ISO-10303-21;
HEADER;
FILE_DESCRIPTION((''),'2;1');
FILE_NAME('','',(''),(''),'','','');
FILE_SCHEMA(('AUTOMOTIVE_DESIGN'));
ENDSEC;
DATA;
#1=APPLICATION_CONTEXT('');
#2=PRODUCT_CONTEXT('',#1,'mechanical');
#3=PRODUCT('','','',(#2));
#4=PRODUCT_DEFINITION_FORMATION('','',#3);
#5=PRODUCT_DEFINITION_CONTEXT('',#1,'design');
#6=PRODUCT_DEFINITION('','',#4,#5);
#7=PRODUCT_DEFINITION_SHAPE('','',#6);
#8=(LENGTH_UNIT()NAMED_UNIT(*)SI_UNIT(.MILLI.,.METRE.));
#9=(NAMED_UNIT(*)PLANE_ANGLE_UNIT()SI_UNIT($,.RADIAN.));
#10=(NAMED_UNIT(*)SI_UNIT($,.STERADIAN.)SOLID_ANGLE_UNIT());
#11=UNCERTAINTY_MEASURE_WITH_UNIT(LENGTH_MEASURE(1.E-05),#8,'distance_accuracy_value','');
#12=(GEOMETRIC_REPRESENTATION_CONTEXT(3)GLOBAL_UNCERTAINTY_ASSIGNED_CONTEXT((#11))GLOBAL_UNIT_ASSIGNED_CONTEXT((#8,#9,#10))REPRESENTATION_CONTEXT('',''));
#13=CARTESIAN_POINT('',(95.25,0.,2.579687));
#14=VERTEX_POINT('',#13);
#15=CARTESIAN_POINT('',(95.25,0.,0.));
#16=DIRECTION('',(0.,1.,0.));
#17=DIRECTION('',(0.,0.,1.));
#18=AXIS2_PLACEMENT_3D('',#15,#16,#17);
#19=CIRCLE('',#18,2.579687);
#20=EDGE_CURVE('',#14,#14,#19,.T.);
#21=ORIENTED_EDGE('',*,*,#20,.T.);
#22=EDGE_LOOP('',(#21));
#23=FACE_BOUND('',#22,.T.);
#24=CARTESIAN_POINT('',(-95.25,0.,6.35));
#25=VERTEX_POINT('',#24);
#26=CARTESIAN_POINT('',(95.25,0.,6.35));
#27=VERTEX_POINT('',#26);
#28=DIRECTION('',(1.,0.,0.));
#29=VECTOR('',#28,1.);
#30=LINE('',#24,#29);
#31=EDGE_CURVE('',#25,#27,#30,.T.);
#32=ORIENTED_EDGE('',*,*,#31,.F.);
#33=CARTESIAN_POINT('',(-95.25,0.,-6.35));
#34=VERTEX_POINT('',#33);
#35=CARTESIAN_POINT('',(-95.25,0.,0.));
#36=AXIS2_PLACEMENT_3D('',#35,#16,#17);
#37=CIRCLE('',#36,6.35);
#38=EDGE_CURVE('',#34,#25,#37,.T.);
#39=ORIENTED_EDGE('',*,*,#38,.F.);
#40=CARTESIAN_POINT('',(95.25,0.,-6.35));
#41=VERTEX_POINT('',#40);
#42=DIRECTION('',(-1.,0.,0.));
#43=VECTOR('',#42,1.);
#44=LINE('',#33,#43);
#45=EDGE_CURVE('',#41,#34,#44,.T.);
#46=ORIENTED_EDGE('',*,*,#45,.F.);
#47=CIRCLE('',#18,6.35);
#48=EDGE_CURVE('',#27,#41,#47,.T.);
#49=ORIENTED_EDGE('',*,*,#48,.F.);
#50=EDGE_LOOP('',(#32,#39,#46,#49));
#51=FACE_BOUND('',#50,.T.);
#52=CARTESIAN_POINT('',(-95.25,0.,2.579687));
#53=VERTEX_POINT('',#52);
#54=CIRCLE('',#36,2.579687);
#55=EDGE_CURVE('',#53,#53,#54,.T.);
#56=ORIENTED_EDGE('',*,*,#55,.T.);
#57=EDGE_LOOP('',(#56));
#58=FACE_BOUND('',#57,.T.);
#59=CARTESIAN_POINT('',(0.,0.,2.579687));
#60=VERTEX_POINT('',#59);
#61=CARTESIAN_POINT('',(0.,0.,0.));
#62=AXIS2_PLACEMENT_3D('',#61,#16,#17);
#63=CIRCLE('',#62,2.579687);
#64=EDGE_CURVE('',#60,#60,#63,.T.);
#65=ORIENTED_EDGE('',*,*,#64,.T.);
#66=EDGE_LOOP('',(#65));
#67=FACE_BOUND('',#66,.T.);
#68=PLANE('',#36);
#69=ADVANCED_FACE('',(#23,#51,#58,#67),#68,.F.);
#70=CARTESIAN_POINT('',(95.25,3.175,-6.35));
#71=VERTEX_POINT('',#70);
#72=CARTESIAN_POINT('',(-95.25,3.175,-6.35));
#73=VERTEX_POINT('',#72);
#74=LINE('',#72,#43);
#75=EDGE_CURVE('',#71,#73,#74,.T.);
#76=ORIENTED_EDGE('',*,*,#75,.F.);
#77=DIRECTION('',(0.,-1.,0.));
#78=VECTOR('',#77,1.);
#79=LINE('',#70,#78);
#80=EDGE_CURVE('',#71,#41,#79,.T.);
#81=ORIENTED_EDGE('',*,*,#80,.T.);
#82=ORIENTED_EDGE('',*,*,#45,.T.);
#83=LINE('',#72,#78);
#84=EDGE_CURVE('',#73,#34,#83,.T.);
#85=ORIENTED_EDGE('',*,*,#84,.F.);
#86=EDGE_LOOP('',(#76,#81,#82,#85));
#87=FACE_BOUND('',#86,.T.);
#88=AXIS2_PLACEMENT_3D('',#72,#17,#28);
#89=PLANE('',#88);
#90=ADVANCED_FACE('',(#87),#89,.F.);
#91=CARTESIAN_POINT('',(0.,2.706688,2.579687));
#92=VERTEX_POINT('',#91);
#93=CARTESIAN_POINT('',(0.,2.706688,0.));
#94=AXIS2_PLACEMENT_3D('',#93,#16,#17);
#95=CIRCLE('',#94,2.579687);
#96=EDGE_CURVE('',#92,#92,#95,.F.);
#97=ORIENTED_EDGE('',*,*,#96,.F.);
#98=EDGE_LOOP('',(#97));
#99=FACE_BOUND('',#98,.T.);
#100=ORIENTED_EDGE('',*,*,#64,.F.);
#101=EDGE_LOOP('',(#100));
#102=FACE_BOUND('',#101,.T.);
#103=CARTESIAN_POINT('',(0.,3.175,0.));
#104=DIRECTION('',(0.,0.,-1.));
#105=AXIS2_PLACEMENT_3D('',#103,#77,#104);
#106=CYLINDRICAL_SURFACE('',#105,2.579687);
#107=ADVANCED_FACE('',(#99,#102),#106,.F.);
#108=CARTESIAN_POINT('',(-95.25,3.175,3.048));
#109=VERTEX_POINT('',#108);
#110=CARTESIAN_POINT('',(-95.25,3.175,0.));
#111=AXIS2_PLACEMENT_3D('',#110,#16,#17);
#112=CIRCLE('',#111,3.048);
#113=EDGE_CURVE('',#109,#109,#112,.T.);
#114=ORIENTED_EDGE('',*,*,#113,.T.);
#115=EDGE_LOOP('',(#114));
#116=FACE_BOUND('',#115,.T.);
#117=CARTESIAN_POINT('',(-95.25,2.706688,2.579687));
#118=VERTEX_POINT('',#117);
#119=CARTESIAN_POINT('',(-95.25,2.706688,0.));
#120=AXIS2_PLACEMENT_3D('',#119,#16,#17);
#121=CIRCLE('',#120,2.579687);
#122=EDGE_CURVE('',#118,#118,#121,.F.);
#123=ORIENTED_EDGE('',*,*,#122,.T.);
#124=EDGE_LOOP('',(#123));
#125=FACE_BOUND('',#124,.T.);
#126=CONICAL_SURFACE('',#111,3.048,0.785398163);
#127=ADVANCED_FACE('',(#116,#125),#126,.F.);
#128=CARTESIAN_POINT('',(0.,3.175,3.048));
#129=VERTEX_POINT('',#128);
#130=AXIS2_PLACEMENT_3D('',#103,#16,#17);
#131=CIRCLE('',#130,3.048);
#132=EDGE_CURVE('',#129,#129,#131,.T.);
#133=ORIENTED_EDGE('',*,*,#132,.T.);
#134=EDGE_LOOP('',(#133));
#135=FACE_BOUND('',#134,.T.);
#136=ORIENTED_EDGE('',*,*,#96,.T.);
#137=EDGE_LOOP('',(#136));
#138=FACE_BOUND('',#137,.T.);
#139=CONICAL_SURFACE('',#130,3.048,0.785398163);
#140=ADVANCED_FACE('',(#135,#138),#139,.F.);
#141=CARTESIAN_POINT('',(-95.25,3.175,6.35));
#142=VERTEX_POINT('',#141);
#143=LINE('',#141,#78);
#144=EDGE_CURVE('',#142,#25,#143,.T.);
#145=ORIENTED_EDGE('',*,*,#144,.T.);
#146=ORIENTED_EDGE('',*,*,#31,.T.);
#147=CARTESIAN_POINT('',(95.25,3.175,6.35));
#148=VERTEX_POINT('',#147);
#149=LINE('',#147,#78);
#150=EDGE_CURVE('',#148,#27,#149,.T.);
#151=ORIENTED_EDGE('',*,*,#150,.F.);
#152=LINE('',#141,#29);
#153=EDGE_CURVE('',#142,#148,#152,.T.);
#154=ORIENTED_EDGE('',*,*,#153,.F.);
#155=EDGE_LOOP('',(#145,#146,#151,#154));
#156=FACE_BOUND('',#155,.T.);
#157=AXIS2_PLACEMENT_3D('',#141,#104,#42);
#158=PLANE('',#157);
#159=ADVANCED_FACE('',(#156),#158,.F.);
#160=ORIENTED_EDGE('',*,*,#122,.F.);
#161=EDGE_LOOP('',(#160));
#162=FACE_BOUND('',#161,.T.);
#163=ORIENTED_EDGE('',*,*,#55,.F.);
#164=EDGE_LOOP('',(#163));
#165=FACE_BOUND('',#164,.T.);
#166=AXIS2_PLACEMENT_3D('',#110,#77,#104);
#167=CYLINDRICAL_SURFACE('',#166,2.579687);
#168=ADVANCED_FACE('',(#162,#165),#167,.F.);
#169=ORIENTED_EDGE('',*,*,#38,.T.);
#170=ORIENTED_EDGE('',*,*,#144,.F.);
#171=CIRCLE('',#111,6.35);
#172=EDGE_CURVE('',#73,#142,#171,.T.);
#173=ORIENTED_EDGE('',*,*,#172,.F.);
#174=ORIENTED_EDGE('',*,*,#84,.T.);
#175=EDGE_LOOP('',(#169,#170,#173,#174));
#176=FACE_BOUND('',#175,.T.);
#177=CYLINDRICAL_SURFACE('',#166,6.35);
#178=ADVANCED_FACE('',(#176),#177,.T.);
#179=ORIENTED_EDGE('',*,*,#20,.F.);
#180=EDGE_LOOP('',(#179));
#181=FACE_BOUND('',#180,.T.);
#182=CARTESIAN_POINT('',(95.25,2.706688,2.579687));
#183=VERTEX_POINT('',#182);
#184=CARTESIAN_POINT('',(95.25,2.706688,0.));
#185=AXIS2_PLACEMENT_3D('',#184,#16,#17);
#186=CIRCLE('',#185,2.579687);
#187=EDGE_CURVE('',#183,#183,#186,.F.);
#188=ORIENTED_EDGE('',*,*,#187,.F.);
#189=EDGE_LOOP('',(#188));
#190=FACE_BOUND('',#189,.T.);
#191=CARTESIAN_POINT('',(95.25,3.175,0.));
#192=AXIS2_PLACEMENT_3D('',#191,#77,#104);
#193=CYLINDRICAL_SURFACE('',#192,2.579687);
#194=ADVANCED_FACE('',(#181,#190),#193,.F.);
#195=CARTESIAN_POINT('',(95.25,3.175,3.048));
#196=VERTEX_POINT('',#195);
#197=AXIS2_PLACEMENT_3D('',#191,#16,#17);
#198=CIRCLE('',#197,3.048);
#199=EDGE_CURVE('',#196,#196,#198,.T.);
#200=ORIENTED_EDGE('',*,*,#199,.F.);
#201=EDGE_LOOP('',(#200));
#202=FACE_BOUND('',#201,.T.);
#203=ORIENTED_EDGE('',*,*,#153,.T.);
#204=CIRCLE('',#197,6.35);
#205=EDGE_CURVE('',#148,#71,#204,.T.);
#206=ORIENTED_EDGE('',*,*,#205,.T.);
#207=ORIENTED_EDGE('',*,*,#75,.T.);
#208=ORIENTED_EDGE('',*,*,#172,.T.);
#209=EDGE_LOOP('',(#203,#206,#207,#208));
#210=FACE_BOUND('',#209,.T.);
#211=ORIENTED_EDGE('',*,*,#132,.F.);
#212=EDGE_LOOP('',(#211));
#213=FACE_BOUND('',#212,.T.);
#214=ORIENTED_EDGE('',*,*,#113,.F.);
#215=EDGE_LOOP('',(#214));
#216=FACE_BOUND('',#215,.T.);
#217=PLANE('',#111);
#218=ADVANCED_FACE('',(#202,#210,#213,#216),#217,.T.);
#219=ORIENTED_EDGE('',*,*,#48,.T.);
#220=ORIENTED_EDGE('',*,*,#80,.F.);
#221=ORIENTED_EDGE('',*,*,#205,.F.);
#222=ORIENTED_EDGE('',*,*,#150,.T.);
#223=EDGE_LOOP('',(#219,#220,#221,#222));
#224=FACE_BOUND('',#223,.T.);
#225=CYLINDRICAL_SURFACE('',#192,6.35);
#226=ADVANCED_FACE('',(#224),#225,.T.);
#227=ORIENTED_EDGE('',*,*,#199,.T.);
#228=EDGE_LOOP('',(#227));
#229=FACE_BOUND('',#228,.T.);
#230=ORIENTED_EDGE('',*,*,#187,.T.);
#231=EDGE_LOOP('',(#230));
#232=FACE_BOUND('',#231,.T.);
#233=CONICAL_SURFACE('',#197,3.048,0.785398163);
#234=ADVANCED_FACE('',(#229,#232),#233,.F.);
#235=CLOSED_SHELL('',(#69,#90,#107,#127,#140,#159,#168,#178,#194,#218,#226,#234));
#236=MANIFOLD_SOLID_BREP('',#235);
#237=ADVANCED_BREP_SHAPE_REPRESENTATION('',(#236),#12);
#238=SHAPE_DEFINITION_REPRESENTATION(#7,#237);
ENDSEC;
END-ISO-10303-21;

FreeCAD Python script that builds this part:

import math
import FreeCAD as App
import Part
import Sketcher

V = App.Vector
Q = App.Units.Quantity

doc = App.newDocument("Part")
body = doc.addObject("PartDesign::Body", "Body")

# Sketch on XZ plane
sketch1 = body.newObject("Sketcher::SketchObject", "Sketch")
sketch1.AttachmentSupport = (doc.getObject("XZ_Plane"), [""])
sketch1.MapMode = "FlatFace"
sketch1.addGeometry(Part.LineSegment(V(95.2, -6.3, 0), V(-95.2, -6.3, 0)), False)
sketch1.addGeometry(Part.ArcOfCircle(Part.Circle(V(-95.2, 0, 0), V(0, 0, 1), 6.3), math.radians(90), math.radians(270)), False)
sketch1.addGeometry(Part.LineSegment(V(-95.2, 6.3, 0), V(95.2, 6.3, 0)), False)
sketch1.addGeometry(Part.ArcOfCircle(Part.Circle(V(95.2, 0, 0), V(0, 0, 1), 6.3), math.radians(-90), math.radians(90)), False)
sketch1.addGeometry(Part.Circle(V(95.2, 0, 0), V(0, 0, 1), 2.6), False)
sketch1.addGeometry(Part.Circle(V(0, 0, 0), V(0, 0, 1), 2.6), False)
sketch1.addGeometry(Part.Circle(V(-95.2, 0, 0), V(0, 0, 1), 2.6), False)
sketch1.addConstraint(Sketcher.Constraint("Tangent", 0, 2, 1, 2))
sketch1.addConstraint(Sketcher.Constraint("Tangent", 1, 1, 2, 1))
sketch1.addConstraint(Sketcher.Constraint("Tangent", 2, 2, 3, 2))
sketch1.addConstraint(Sketcher.Constraint("Tangent", 3, 1, 0, 1))
sketch1.addConstraint(Sketcher.Constraint("Horizontal", 0))
sketch1.addConstraint(Sketcher.Constraint("Horizontal", 2))
sketch1.addConstraint(Sketcher.Constraint("Coincident", 5, 3, -1, 1))
sketch1.addConstraint(Sketcher.Constraint("Coincident", 4, 3, 3, 3))
sketch1.addConstraint(Sketcher.Constraint("Coincident", 6, 3, 1, 3))
sketch1.addConstraint(Sketcher.Constraint("Equal", 4, 5))
sketch1.addConstraint(Sketcher.Constraint("Equal", 5, 6))
sketch1.addConstraint(Sketcher.Constraint("Symmetric", 1, 3, 3, 3, -1, 1))
sketch1.addConstraint(Sketcher.Constraint("Radius", 1, Q("0.25 in")))
sketch1.addConstraint(Sketcher.Constraint("Diameter", 4, Q("0.203125 in")))
sketch1.addConstraint(Sketcher.Constraint("DistanceX", 0, 2, 0, 1, Q("7.5 in")))
pad1 = body.newObject("PartDesign::Pad", "Pad")
pad1.Profile = sketch1
pad1.Length = Q("0.125 in")
pad1.Reversed = True

# Sketch on XZ plane
sketch2 = body.newObject("Sketcher::SketchObject", "Sketch001")
sketch2.AttachmentSupport = (doc.getObject("XZ_Plane"), [""])
sketch2.MapMode = "FlatFace"
sketch2.AttachmentOffset = App.Placement(V(0, 0, -0.125 * 25.4), App.Rotation())
sketch2.addGeometry(Part.Circle(V(-95.2, 0, 0), V(0, 0, 1), 2), False)
sketch2.addGeometry(Part.Circle(V(0, 0, 0), V(0, 0, 1), 2), False)
sketch2.addGeometry(Part.Circle(V(95.2, 0, 0), V(0, 0, 1), 2), False)
sketch2.addConstraint(Sketcher.Constraint("Coincident", 1, 3, -1, 1))
sketch2.addConstraint(Sketcher.Constraint("Equal", 0, 1))
sketch2.addConstraint(Sketcher.Constraint("Equal", 1, 2))
sketch2.addConstraint(Sketcher.Constraint("Symmetric", 0, 3, 2, 3, -1, 1))
sketch2.addConstraint(Sketcher.Constraint("PointOnObject", 0, 3, -1))
sketch2.addConstraint(Sketcher.Constraint("Diameter", 0, Q("0.159 in")))
sketch2.addConstraint(Sketcher.Constraint("DistanceX", 0, 3, 2, 3, Q("7.5 in")))
doc.recompute()
hole = body.newObject("PartDesign::Hole", "Hole")
hole.Profile = sketch2
hole.ThreadType = "None"
hole.Diameter = Q("0.159 in")
hole.DepthType = "ThroughAll"
hole.HoleCutType = "Countersink"
hole.HoleCutDiameter = Q("0.24 in")
hole.HoleCutCountersinkAngle = 90
hole.Reversed = True

doc.recompute()
